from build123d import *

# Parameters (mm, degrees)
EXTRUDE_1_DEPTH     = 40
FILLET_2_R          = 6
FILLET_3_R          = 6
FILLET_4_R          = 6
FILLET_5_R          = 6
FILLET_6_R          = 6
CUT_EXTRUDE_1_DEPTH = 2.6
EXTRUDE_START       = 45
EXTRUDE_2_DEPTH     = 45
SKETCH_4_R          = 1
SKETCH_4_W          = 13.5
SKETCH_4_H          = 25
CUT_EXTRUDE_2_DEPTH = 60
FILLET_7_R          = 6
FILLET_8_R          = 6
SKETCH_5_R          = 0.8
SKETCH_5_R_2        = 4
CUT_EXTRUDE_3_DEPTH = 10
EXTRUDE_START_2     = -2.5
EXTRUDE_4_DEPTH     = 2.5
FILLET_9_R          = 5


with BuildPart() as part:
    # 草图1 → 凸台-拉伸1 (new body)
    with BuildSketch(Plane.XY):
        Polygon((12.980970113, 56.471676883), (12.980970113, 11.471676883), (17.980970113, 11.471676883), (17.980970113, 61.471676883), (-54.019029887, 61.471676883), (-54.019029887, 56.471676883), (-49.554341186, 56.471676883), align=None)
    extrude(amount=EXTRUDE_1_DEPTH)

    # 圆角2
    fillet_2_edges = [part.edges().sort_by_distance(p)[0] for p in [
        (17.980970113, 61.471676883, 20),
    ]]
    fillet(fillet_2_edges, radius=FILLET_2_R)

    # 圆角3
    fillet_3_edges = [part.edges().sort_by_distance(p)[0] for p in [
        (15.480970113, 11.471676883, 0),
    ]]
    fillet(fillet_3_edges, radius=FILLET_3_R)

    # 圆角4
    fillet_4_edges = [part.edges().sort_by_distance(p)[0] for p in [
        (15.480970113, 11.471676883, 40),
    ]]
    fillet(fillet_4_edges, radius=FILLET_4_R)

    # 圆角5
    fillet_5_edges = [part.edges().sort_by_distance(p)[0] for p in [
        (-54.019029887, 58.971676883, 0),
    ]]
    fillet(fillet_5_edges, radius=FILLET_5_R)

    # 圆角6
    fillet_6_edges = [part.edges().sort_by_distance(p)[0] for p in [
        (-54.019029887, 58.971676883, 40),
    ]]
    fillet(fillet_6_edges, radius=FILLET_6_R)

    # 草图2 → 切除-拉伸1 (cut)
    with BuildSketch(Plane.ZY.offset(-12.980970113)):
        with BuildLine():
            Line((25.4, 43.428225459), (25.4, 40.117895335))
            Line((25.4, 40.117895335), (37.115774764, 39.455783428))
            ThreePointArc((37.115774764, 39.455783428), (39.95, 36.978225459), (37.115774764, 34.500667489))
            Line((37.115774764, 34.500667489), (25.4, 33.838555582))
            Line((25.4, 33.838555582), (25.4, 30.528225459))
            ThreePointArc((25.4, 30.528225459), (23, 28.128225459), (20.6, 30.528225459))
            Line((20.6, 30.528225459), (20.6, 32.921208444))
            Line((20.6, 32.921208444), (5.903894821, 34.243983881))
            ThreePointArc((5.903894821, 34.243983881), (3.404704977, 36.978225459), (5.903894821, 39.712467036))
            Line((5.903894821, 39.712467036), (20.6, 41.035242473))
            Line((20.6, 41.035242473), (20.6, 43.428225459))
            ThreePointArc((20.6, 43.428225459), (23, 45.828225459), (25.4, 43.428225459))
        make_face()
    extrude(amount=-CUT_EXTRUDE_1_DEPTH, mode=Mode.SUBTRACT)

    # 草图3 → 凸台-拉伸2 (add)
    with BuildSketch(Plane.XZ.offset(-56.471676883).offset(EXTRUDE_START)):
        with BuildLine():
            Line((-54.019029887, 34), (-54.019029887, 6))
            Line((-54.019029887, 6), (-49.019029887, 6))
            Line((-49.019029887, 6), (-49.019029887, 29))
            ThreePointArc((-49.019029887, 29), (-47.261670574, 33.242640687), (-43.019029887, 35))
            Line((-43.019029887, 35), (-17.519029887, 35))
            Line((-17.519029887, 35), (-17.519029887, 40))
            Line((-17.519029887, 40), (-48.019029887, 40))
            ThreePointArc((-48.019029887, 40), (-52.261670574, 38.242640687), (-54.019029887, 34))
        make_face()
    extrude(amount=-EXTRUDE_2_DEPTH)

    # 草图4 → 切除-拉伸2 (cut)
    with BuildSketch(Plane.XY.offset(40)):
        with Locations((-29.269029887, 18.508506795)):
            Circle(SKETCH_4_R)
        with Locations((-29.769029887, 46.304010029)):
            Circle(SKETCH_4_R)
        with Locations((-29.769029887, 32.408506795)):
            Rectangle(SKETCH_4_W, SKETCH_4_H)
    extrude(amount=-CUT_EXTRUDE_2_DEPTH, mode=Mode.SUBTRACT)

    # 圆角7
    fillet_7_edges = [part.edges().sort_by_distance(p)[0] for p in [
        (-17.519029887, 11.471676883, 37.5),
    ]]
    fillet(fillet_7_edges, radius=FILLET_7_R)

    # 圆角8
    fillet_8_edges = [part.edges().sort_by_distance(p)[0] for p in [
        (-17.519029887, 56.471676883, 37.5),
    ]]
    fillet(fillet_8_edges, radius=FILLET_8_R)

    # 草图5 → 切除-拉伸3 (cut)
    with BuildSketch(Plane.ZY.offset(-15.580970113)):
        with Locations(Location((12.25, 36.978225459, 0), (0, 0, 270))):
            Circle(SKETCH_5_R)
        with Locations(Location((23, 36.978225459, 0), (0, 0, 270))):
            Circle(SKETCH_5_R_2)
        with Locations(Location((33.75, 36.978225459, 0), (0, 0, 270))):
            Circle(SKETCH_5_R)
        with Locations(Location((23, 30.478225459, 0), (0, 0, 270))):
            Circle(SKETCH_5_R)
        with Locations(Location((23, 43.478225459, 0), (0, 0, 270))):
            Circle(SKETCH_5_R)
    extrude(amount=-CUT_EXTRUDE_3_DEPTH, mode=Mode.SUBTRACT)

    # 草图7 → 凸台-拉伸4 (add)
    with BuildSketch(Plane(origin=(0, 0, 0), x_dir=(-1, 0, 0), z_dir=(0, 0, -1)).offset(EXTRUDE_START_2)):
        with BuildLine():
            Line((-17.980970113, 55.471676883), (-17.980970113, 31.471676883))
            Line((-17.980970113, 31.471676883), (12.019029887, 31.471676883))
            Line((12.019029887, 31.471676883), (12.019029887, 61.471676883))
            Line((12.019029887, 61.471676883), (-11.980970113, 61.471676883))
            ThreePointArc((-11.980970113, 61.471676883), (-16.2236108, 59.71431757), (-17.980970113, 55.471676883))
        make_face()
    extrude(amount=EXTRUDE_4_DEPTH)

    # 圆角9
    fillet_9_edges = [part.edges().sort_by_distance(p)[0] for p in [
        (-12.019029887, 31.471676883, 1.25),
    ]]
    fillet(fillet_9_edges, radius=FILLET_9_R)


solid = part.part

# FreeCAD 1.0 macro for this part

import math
import FreeCAD as App
import Part
import Sketcher
Q = App.Units.Quantity


def edges_at(feature, points):
    """Names of the edges that pass closest to the given points."""
    edges = feature.Shape.Edges
    near = lambda p: min(range(len(edges)), key=lambda i: edges[i].distToShape(Part.Vertex(*p))[0])
    return sorted({f"Edge{near(p) + 1}" for p in points})

doc = App.newDocument("Part")
body = doc.addObject("PartDesign::Body", "Body")

# Sketch on XY plane
sketch1 = body.newObject("Sketcher::SketchObject", "Sketch")
sketch1.AttachmentSupport = (doc.getObject("XY_Plane"), [""])
sketch1.MapMode = "FlatFace"
sketch1.addGeometry([
    Part.LineSegment(App.Vector(13, 56, 0), App.Vector(13, 11, 0)),  # 0
    Part.LineSegment(App.Vector(13, 11, 0), App.Vector(18, 11, 0)),  # 1
    Part.LineSegment(App.Vector(18, 11, 0), App.Vector(18, 61, 0)),  # 2
    Part.LineSegment(App.Vector(18, 61, 0), App.Vector(-54, 61, 0)),  # 3
    Part.LineSegment(App.Vector(-54, 61, 0), App.Vector(-54, 56, 0)),  # 4
    Part.LineSegment(App.Vector(-54, 56, 0), App.Vector(13, 56, 0)),  # 5
], False)
sketch1.addConstraint([
    Sketcher.Constraint("Coincident", 0, 2, 1, 1),
    Sketcher.Constraint("Coincident", 1, 2, 2, 1),
    Sketcher.Constraint("Coincident", 2, 2, 3, 1),
    Sketcher.Constraint("Coincident", 3, 2, 4, 1),
    Sketcher.Constraint("Coincident", 4, 2, 5, 1),
    Sketcher.Constraint("Coincident", 5, 2, 0, 1),
    Sketcher.Constraint("Vertical", 0),
    Sketcher.Constraint("Horizontal", 1),
    Sketcher.Constraint("Vertical", 2),
    Sketcher.Constraint("Horizontal", 3),
    Sketcher.Constraint("Vertical", 4),
    Sketcher.Constraint("Horizontal", 5),
    Sketcher.Constraint("Equal", 1, 4),
    Sketcher.Constraint("DistanceX", 1, 1, 1, 2, Q("5 mm")),
    Sketcher.Constraint("DistanceX", 3, 2, 3, 1, Q("72 mm")),
    Sketcher.Constraint("DistanceY", 0, 2, 0, 1, Q("45 mm")),
    Sketcher.Constraint("DistanceX", -1, 1, 0, 2, Q("12.98097 mm")),
    Sketcher.Constraint("DistanceY", -1, 1, 0, 2, Q("11.471677 mm")),
])
pad1 = body.newObject("PartDesign::Pad", "Pad")
pad1.Profile = sketch1
pad1.Length = 40
doc.recompute()

fillet = body.newObject("PartDesign::Fillet", "Fillet")
fillet.Base = (pad1, edges_at(pad1, [(17.981, 61.472, 20)]))
fillet.Radius = 6
doc.recompute()

fillet2 = body.newObject("PartDesign::Fillet", "Fillet001")
fillet2.Base = (fillet, edges_at(fillet, [(15.481, 11.472, 0)]))
fillet2.Radius = 6
doc.recompute()

fillet3 = body.newObject("PartDesign::Fillet", "Fillet002")
fillet3.Base = (fillet2, edges_at(fillet2, [(15.481, 11.472, 40)]))
fillet3.Radius = 6
doc.recompute()

fillet4 = body.newObject("PartDesign::Fillet", "Fillet003")
fillet4.Base = (fillet3, edges_at(fillet3, [(-54.019, 58.972, 0)]))
fillet4.Radius = 6
doc.recompute()

fillet5 = body.newObject("PartDesign::Fillet", "Fillet004")
fillet5.Base = (fillet4, edges_at(fillet4, [(-54.019, 58.972, 40)]))
fillet5.Radius = 6

# Sketch on YZ plane
sketch2 = body.newObject("Sketcher::SketchObject", "Sketch001")
sketch2.AttachmentSupport = (doc.getObject("YZ_Plane"), [""])
sketch2.MapMode = "FlatFace"
sketch2.AttachmentOffset = App.Placement(App.Vector(0, 0, 12.98097), App.Rotation())
sketch2.addGeometry([
    Part.LineSegment(App.Vector(40.1, 25.4, 0), App.Vector(43.4, 25.4, 0)),  # 0
    Part.ArcOfCircle(Part.Circle(App.Vector(43.4, 23, 0), App.Vector(0, 0, 1), 2.4), math.radians(-90), math.radians(90)),  # 1
    Part.LineSegment(App.Vector(43.4, 20.6, 0), App.Vector(41, 20.6, 0)),  # 2
    Part.LineSegment(App.Vector(41, 20.6, 0), App.Vector(39.7, 5.9, 0)),  # 3
    Part.ArcOfCircle(Part.Circle(App.Vector(37, 6.2, 0), App.Vector(0, 0, 1), 2.7), math.radians(-175), math.radians(-5)),  # 4
    Part.LineSegment(App.Vector(34.2, 5.9, 0), App.Vector(32.9, 20.6, 0)),  # 5
    Part.LineSegment(App.Vector(32.9, 20.6, 0), App.Vector(30.5, 20.6, 0)),  # 6
    Part.ArcOfCircle(Part.Circle(App.Vector(30.5, 23, 0), App.Vector(0, 0, 1), 2.4), math.radians(90), math.radians(270)),  # 7
    Part.LineSegment(App.Vector(30.5, 25.4, 0), App.Vector(33.8, 25.4, 0)),  # 8
    Part.LineSegment(App.Vector(33.8, 25.4, 0), App.Vector(34.5, 37.1, 0)),  # 9
    Part.ArcOfCircle(Part.Circle(App.Vector(37, 37.5, 0), App.Vector(0, 0, 1), 2.5), math.radians(-8), math.radians(188)),  # 10
    Part.LineSegment(App.Vector(39.5, 37.1, 0), App.Vector(40.1, 25.4, 0)),  # 11
], False)
sketch2.addConstraint([
    Sketcher.Constraint("Tangent", 0, 2, 1, 2),
    Sketcher.Constraint("Tangent", 1, 1, 2, 1),
    Sketcher.Constraint("Coincident", 2, 2, 3, 1),
    Sketcher.Constraint("Tangent", 3, 2, 4, 2),
    Sketcher.Constraint("Tangent", 4, 1, 5, 1),
    Sketcher.Constraint("Coincident", 5, 2, 6, 1),
    Sketcher.Constraint("Tangent", 6, 2, 7, 2),
    Sketcher.Constraint("Tangent", 7, 1, 8, 1),
    Sketcher.Constraint("Coincident", 8, 2, 9, 1),
    Sketcher.Constraint("Coincident", 9, 2, 10, 2),
    Sketcher.Constraint("Coincident", 10, 1, 11, 1),
    Sketcher.Constraint("Coincident", 11, 2, 0, 1),
    Sketcher.Constraint("Horizontal", 0),
    Sketcher.Constraint("Horizontal", 2),
    Sketcher.Constraint("Horizontal", 6),
    Sketcher.Constraint("Horizontal", 8),
    Sketcher.Constraint("Equal", 1, 7),
    Sketcher.Constraint("Horizontal", 1, 3, 7, 3),
    Sketcher.Constraint("Horizontal", 3, 2, 4, 1),
    Sketcher.Constraint("Horizontal", 9, 2, 10, 1),
    Sketcher.Constraint("Vertical", 4, 3, 10, 3),
    Sketcher.Constraint("Equal", 2, 6),
    Sketcher.Constraint("Equal", 0, 8),
    Sketcher.Constraint("Radius", 1, Q("2.4 mm")),
    Sketcher.Constraint("Radius", 10, Q("2.5 mm")),
    Sketcher.Constraint("DistanceY", -1, 1, 1, 3, Q("23 mm")),
    Sketcher.Constraint("DistanceX", 7, 3, 1, 3, Q("12.9 mm")),
    Sketcher.Constraint("DistanceY", 4, 3, 10, 3, Q("31.3 mm")),
    Sketcher.Constraint("DistanceY", -1, 1, 4, 3, Q("6.15 mm")),
    Sketcher.Constraint("Radius", 4, Q("2.745295 mm")),
    Sketcher.Constraint("DistanceX", 0, 1, 0, 2, Q("3.31033 mm")),
    Sketcher.Constraint("Distance", 9, Q("11.734469 mm")),
    Sketcher.Constraint("DistanceX", 2, 2, 2, 1, Q("2.392983 mm")),
    Sketcher.Constraint("DistanceX", -1, 1, 5, 2, Q("32.921208 mm")),
])
pocket1 = body.newObject("PartDesign::Pocket", "Pocket")
pocket1.Profile = sketch2
pocket1.Length = 2.6
pocket1.Reversed = True

# Sketch on XZ plane
sketch3 = body.newObject("Sketcher::SketchObject", "Sketch002")
sketch3.AttachmentSupport = (doc.getObject("XZ_Plane"), [""])
sketch3.MapMode = "FlatFace"
sketch3.AttachmentOffset = App.Placement(App.Vector(0, 0, -11.471677), App.Rotation())
sketch3.addGeometry([
    Part.LineSegment(App.Vector(-54, 34, 0), App.Vector(-54, 6, 0)),  # 0
    Part.LineSegment(App.Vector(-54, 6, 0), App.Vector(-49, 6, 0)),  # 1
    Part.LineSegment(App.Vector(-49, 6, 0), App.Vector(-49, 29, 0)),  # 2
    Part.ArcOfCircle(Part.Circle(App.Vector(-43, 29, 0), App.Vector(0, 0, 1), 6), math.radians(90), math.radians(180)),  # 3
    Part.LineSegment(App.Vector(-43, 35, 0), App.Vector(-18, 35, 0)),  # 4
    Part.LineSegment(App.Vector(-18, 35, 0), App.Vector(-18, 40, 0)),  # 5
    Part.LineSegment(App.Vector(-18, 40, 0), App.Vector(-48, 40, 0)),  # 6
    Part.ArcOfCircle(Part.Circle(App.Vector(-48, 34, 0), App.Vector(0, 0, 1), 6), math.radians(90), math.radians(180)),  # 7
], False)
sketch3.addConstraint([
    Sketcher.Constraint("Coincident", 0, 2, 1, 1),
    Sketcher.Constraint("Coincident", 1, 2, 2, 1),
    Sketcher.Constraint("Tangent", 2, 2, 3, 2),
    Sketcher.Constraint("Tangent", 3, 1, 4, 1),
    Sketcher.Constraint("Coincident", 4, 2, 5, 1),
    Sketcher.Constraint("Coincident", 5, 2, 6, 1),
    Sketcher.Constraint("Tangent", 6, 2, 7, 1),
    Sketcher.Constraint("Tangent", 7, 2, 0, 1),
    Sketcher.Constraint("Vertical", 0),
    Sketcher.Constraint("Horizontal", 1),
    Sketcher.Constraint("Vertical", 2),
    Sketcher.Constraint("Horizontal", 4),
    Sketcher.Constraint("Vertical", 5),
    Sketcher.Constraint("Horizontal", 6),
    Sketcher.Constraint("Equal", 3, 7),
    Sketcher.Constraint("Equal", 1, 5),
    Sketcher.Constraint("Radius", 3, Q("6 mm")),
    Sketcher.Constraint("DistanceX", 1, 1, 1, 2, Q("5 mm")),
    Sketcher.Constraint("DistanceY", 0, 2, 0, 1, Q("28 mm")),
    Sketcher.Constraint("DistanceX", 4, 1, 4, 2, Q("25.5 mm")),
    Sketcher.Constraint("DistanceY", -1, 1, 3, 3, Q("29 mm")),
    Sketcher.Constraint("DistanceX", 3, 3, -1, 1, Q("43.01903 mm")),
])
pad2 = body.newObject("PartDesign::Pad", "Pad001")
pad2.Profile = sketch3
pad2.Length = 45
pad2.Reversed = True

# Sketch on XY plane
sketch4 = body.newObject("Sketcher::SketchObject", "Sketch003")
sketch4.AttachmentSupport = (doc.getObject("XY_Plane"), [""])
sketch4.MapMode = "FlatFace"
sketch4.AttachmentOffset = App.Placement(App.Vector(0, 0, 40), App.Rotation())
sketch4.addGeometry([
    Part.Circle(App.Vector(-29.3, 18.5, 0), App.Vector(0, 0, 1), 1),  # 0
    Part.Circle(App.Vector(-29.8, 46.3, 0), App.Vector(0, 0, 1), 1),  # 1
    Part.LineSegment(App.Vector(-36.5, 44.9, 0), App.Vector(-36.5, 19.9, 0)),  # 2
    Part.LineSegment(App.Vector(-36.5, 19.9, 0), App.Vector(-23, 19.9, 0)),  # 3
    Part.LineSegment(App.Vector(-23, 19.9, 0), App.Vector(-23, 44.9, 0)),  # 4
    Part.LineSegment(App.Vector(-23, 44.9, 0), App.Vector(-36.5, 44.9, 0)),  # 5
], False)
sketch4.addConstraint([
    Sketcher.Constraint("Coincident", 2, 2, 3, 1),
    Sketcher.Constraint("Coincident", 3, 2, 4, 1),
    Sketcher.Constraint("Coincident", 4, 2, 5, 1),
    Sketcher.Constraint("Coincident", 5, 2, 2, 1),
    Sketcher.Constraint("Vertical", 2),
    Sketcher.Constraint("Horizontal", 3),
    Sketcher.Constraint("Vertical", 4),
    Sketcher.Constraint("Horizontal", 5),
    Sketcher.Constraint("Equal", 0, 1),
    Sketcher.Constraint("Diameter", 0, Q("2 mm")),
    Sketcher.Constraint("DistanceY", 2, 2, 2, 1, Q("25 mm")),
    Sketcher.Constraint("DistanceX", 3, 1, 3, 2, Q("13.5 mm")),
    Sketcher.Constraint("DistanceX", 1, 3, 0, 3, Q("0.5 mm")),
    Sketcher.Constraint("DistanceY", 0, 3, 2, 2, Q("1.4 mm")),
    Sketcher.Constraint("DistanceX", 2, 2, 0, 3, Q("7.25 mm")),
    Sketcher.Constraint("DistanceX", 0, 3, -1, 1, Q("29.26903 mm")),
    Sketcher.Constraint("DistanceY", -1, 1, 1, 3, Q("46.30401 mm")),
    Sketcher.Constraint("DistanceY", -1, 1, 0, 3, Q("18.508507 mm")),
])
pocket2 = body.newObject("PartDesign::Pocket", "Pocket001")
pocket2.Profile = sketch4
pocket2.Length = 60
doc.recompute()

fillet6 = body.newObject("PartDesign::Fillet", "Fillet005")
fillet6.Base = (pocket2, edges_at(pocket2, [(-17.519, 11.472, 37.5)]))
fillet6.Radius = 6
doc.recompute()

fillet7 = body.newObject("PartDesign::Fillet", "Fillet006")
fillet7.Base = (fillet6, edges_at(fillet6, [(-17.519, 56.472, 37.5)]))
fillet7.Radius = 6

# Sketch on YZ plane
sketch5 = body.newObject("Sketcher::SketchObject", "Sketch004")
sketch5.AttachmentSupport = (doc.getObject("YZ_Plane"), [""])
sketch5.MapMode = "FlatFace"
sketch5.AttachmentOffset = App.Placement(App.Vector(0, 0, 15.58097), App.Rotation())
sketch5.addGeometry([
    Part.Circle(App.Vector(37, 12.2, 0), App.Vector(0, 0, 1), 0.8),  # 0
    Part.Circle(App.Vector(37, 23, 0), App.Vector(0, 0, 1), 4),  # 1
    Part.Circle(App.Vector(37, 33.8, 0), App.Vector(0, 0, 1), 0.8),  # 2
    Part.Circle(App.Vector(30.5, 23, 0), App.Vector(0, 0, 1), 0.8),  # 3
    Part.Circle(App.Vector(43.5, 23, 0), App.Vector(0, 0, 1), 0.8),  # 4
], False)
sketch5.addConstraint([
    Sketcher.Constraint("Equal", 0, 2),
    Sketcher.Constraint("Equal", 2, 3),
    Sketcher.Constraint("Equal", 3, 4),
    Sketcher.Constraint("Horizontal", 1, 3, 3, 3),
    Sketcher.Constraint("Horizontal", 3, 3, 4, 3),
    Sketcher.Constraint("Vertical", 0, 3, 1, 3),
    Sketcher.Constraint("Vertical", 1, 3, 2, 3),
    Sketcher.Constraint("Diameter", 1, Q("8 mm")),
    Sketcher.Constraint("Diameter", 0, Q("1.6 mm")),
    Sketcher.Constraint("DistanceY", -1, 1, 1, 3, Q("23 mm")),
    Sketcher.Constraint("DistanceX", 3, 3, 4, 3, Q("13 mm")),
    Sketcher.Constraint("DistanceY", 0, 3, 2, 3, Q("21.5 mm")),
    Sketcher.Constraint("DistanceX", 3, 3, 1, 3, Q("6.5 mm")),
    Sketcher.Constraint("DistanceY", -1, 1, 0, 3, Q("12.25 mm")),
    Sketcher.Constraint("DistanceX", -1, 1, 0, 3, Q("36.978225 mm")),
])
pocket3 = body.newObject("PartDesign::Pocket", "Pocket002")
pocket3.Profile = sketch5
pocket3.Length = 10
pocket3.Reversed = True

# Sketch on XY plane
sketch6 = body.newObject("Sketcher::SketchObject", "Sketch005")
sketch6.AttachmentSupport = (doc.getObject("XY_Plane"), [""])
sketch6.MapMode = "FlatFace"
sketch6.AttachmentOffset = App.Placement(App.Vector(0, 0, 2.5), App.Rotation())
sketch6.addGeometry([
    Part.LineSegment(App.Vector(18, 55, 0), App.Vector(18, 31, 0)),  # 0
    Part.LineSegment(App.Vector(18, 31, 0), App.Vector(-12, 31, 0)),  # 1
    Part.LineSegment(App.Vector(-12, 31, 0), App.Vector(-12, 61, 0)),  # 2
    Part.LineSegment(App.Vector(-12, 61, 0), App.Vector(12, 61, 0)),  # 3
    Part.ArcOfCircle(Part.Circle(App.Vector(12, 55, 0), App.Vector(0, 0, 1), 6), math.radians(0), math.radians(90)),  # 4
], False)
sketch6.addConstraint([
    Sketcher.Constraint("Coincident", 0, 2, 1, 1),
    Sketcher.Constraint("Coincident", 1, 2, 2, 1),
    Sketcher.Constraint("Coincident", 2, 2, 3, 1),
    Sketcher.Constraint("Tangent", 3, 2, 4, 2),
    Sketcher.Constraint("Tangent", 4, 1, 0, 1),
    Sketcher.Constraint("Vertical", 0),
    Sketcher.Constraint("Horizontal", 1),
    Sketcher.Constraint("Vertical", 2),
    Sketcher.Constraint("Horizontal", 3),
    Sketcher.Constraint("Equal", 3, 0),
    Sketcher.Constraint("Radius", 4, Q("6 mm")),
    Sketcher.Constraint("DistanceX", 1, 2, 1, 1, Q("30 mm")),
    Sketcher.Constraint("DistanceX", -1, 1, 4, 3, Q("11.98097 mm")),
    Sketcher.Constraint("DistanceY", -1, 1, 4, 3, Q("55.471677 mm")),
])
pad3 = body.newObject("PartDesign::Pad", "Pad002")
pad3.Profile = sketch6
pad3.Length = 2.5
pad3.Reversed = True
doc.recompute()

fillet8 = body.newObject("PartDesign::Fillet", "Fillet007")
fillet8.Base = (pad3, edges_at(pad3, [(-12.019, 31.472, 1.25)]))
fillet8.Radius = 5

doc.recompute()
